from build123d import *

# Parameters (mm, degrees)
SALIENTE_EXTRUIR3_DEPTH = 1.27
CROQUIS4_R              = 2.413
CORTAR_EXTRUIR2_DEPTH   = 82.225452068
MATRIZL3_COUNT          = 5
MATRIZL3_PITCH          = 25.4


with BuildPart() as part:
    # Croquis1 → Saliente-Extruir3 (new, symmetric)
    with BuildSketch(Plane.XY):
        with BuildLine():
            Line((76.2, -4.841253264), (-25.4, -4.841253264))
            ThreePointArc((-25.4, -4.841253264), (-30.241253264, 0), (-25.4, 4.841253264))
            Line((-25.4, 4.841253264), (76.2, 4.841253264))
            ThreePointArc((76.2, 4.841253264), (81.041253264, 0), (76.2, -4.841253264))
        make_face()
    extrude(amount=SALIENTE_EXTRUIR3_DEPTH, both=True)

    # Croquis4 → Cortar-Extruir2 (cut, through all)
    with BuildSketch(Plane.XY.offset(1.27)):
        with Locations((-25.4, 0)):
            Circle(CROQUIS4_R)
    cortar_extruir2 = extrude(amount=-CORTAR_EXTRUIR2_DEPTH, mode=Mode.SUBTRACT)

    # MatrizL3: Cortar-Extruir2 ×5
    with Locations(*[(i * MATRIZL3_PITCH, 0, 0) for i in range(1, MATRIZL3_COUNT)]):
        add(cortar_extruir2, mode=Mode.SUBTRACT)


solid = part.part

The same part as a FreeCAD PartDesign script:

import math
import FreeCAD as App
import Part
import Sketcher

V = App.Vector
Q = App.Units.Quantity

doc = App.newDocument("Part")
body = doc.addObject("PartDesign::Body", "Body")

# Sketch on XY plane
sketch1 = body.newObject("Sketcher::SketchObject", "Sketch")
sketch1.AttachmentSupport = (doc.getObject("XY_Plane"), [""])
sketch1.MapMode = "FlatFace"
sketch1.addGeometry(Part.LineSegment(V(-25.4, -4.8, 0), V(76.2, -4.8, 0)), False)
sketch1.addGeometry(Part.ArcOfCircle(Part.Circle(V(76.2, 0, 0), V(0, 0, 1), 4.8), math.radians(-90), math.radians(90)), False)
sketch1.addGeometry(Part.LineSegment(V(76.2, 4.8, 0), V(-25.4, 4.8, 0)), False)
sketch1.addGeometry(Part.ArcOfCircle(Part.Circle(V(-25.4, 0, 0), V(0, 0, 1), 4.8), math.radians(90), math.radians(270)), False)
sketch1.addConstraint(Sketcher.Constraint("Tangent", 0, 2, 1, 1))
sketch1.addConstraint(Sketcher.Constraint("Tangent", 1, 2, 2, 1))
sketch1.addConstraint(Sketcher.Constraint("Tangent", 2, 2, 3, 1))
sketch1.addConstraint(Sketcher.Constraint("Tangent", 3, 2, 0, 1))
sketch1.addConstraint(Sketcher.Constraint("Horizontal", 0))
sketch1.addConstraint(Sketcher.Constraint("Horizontal", 2))
sketch1.addConstraint(Sketcher.Constraint("PointOnObject", 1, 3, -1))
sketch1.addConstraint(Sketcher.Constraint("DistanceX", 0, 1, 0, 2, Q("4 in")))
sketch1.addConstraint(Sketcher.Constraint("DistanceX", -1, 1, 1, 3, Q("3 in")))
sketch1.addConstraint(Sketcher.Constraint("Radius", 1, Q("4.841253 mm")))
pad1 = body.newObject("PartDesign::Pad", "Pad")
pad1.Profile = sketch1
pad1.Length = Q("0.1 in")
pad1.Midplane = True

# Sketch on XY plane
sketch2 = body.newObject("Sketcher::SketchObject", "Sketch001")
sketch2.AttachmentSupport = (doc.getObject("XY_Plane"), [""])
sketch2.MapMode = "FlatFace"
sketch2.AttachmentOffset = App.Placement(V(0, 0, 0.05 * 25.4), App.Rotation())
sketch2.addGeometry(Part.Circle(V(-25.4, 0, 0), V(0, 0, 1), 2.4), False)
sketch2.addConstraint(Sketcher.Constraint("PointOnObject", 0, 3, -1))
sketch2.addConstraint(Sketcher.Constraint("Diameter", 0, Q("0.19 in")))
sketch2.addConstraint(Sketcher.Constraint("DistanceX", 0, 3, -1, 1, Q("1 in")))
pocket1 = body.newObject("PartDesign::Pocket", "Pocket")
pocket1.Profile = sketch2
pocket1.Type = "ThroughAll"
doc.recompute()

linearpattern = body.newObject("PartDesign::LinearPattern", "LinearPattern")
linearpattern.Originals = [pocket1]
linearpattern.Direction = (doc.getObject("X_Axis"), [""])
linearpattern.Mode = "offset"
linearpattern.Offset = Q("1 in")
linearpattern.Occurrences = 5
body.Tip = linearpattern

doc.recompute()
